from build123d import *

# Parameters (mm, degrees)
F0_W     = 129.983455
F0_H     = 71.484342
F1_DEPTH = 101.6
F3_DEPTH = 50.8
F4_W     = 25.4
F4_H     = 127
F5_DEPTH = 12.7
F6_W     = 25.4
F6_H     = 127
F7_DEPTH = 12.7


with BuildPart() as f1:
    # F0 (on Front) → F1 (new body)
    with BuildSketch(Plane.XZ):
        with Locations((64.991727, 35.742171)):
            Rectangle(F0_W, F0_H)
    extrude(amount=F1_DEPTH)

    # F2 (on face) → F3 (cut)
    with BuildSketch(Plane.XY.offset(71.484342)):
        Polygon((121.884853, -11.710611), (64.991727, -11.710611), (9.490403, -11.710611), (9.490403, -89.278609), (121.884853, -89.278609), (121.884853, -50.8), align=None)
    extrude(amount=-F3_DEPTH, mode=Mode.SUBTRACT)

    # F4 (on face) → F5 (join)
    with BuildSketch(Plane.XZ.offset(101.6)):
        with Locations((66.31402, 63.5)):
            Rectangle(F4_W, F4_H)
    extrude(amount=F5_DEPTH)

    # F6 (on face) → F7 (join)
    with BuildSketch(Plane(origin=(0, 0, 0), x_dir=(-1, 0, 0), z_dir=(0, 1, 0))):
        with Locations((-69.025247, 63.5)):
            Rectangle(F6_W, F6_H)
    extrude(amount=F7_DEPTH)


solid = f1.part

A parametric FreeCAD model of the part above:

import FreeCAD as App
import Part
import Sketcher

V = App.Vector
Q = App.Units.Quantity

doc = App.newDocument("Part")
body = doc.addObject("PartDesign::Body", "Body")

sketch1 = doc.addObject("Sketcher::SketchObject", "Sketch")
body.addObject(sketch1)
sketch1.AttachmentSupport = (doc.XZ_Plane, [""])
sketch1.MapMode = "FlatFace"
sketch1.addGeometry([
    Part.LineSegment(V(0, 71.484342, 0), V(0, 0, 0)),
    Part.LineSegment(V(0, 0, 0), V(129.983454, 0, 0)),
    Part.LineSegment(V(129.983454, 0, 0), V(129.983454, 71.484342, 0)),
    Part.LineSegment(V(129.983454, 71.484342, 0), V(0, 71.484342, 0)),
], False)
sketch1.addConstraint([
    Sketcher.Constraint("Coincident", 0, 2, 1, 1),
    Sketcher.Constraint("Coincident", 1, 2, 2, 1),
    Sketcher.Constraint("Coincident", 2, 2, 3, 1),
    Sketcher.Constraint("Coincident", 3, 2, 0, 1),
    Sketcher.Constraint("Vertical", 0),
    Sketcher.Constraint("Horizontal", 1),
    Sketcher.Constraint("Vertical", 2),
    Sketcher.Constraint("Horizontal", 3),
    Sketcher.Constraint("Coincident", 0, 2, -1, 1),
    Sketcher.Constraint("DistanceY", 0, 2, 0, 1, 71.484342),
    Sketcher.Constraint("DistanceX", 1, 1, 1, 2, 129.983455),
])
pad1 = doc.addObject("PartDesign::Pad", "Pad")
body.addObject(pad1)
pad1.Profile = sketch1
pad1.Length = Q("4 in")

sketch2 = doc.addObject("Sketcher::SketchObject", "Sketch001")
body.addObject(sketch2)
sketch2.AttachmentSupport = (doc.XY_Plane, [""])
sketch2.MapMode = "FlatFace"
sketch2.AttachmentOffset = App.Placement(V(0, 0, 71.484342), App.Rotation())
sketch2.addGeometry([
    Part.LineSegment(V(121.884853, -11.710611, 0), V(9.490403, -11.710611, 0)),
    Part.LineSegment(V(9.490403, -11.710611, 0), V(9.490403, -89.278609, 0)),
    Part.LineSegment(V(9.490403, -89.278609, 0), V(121.884853, -89.278609, 0)),
    Part.LineSegment(V(121.884853, -89.278609, 0), V(121.884853, -11.710611, 0)),
], False)
sketch2.addConstraint([
    Sketcher.Constraint("Coincident", 0, 2, 1, 1),
    Sketcher.Constraint("Coincident", 1, 2, 2, 1),
    Sketcher.Constraint("Coincident", 2, 2, 3, 1),
    Sketcher.Constraint("Coincident", 3, 2, 0, 1),
    Sketcher.Constraint("Horizontal", 0),
    Sketcher.Constraint("Vertical", 1),
    Sketcher.Constraint("Horizontal", 2),
    Sketcher.Constraint("Vertical", 3),
    Sketcher.Constraint("DistanceY", 1, 2, 1, 1, 77.567998),
    Sketcher.Constraint("DistanceX", 0, 2, 0, 1, 112.39445),
    Sketcher.Constraint("DistanceY", 0, 2, -1, 1, 11.710611),
    Sketcher.Constraint("DistanceX", -1, 1, 0, 2, 9.490403),
])
pocket1 = doc.addObject("PartDesign::Pocket", "Pocket")
body.addObject(pocket1)
pocket1.Profile = sketch2
pocket1.Length = Q("2 in")

sketch3 = doc.addObject("Sketcher::SketchObject", "Sketch002")
body.addObject(sketch3)
sketch3.AttachmentSupport = (doc.XZ_Plane, [""])
sketch3.MapMode = "FlatFace"
sketch3.AttachmentOffset = App.Placement(V(0, 0, 4 * 25.4), App.Rotation())
sketch3.addGeometry([
    Part.LineSegment(V(53.61402, 127, 0), V(53.61402, 0, 0)),
    Part.LineSegment(V(53.61402, 0, 0), V(79.01402, 0, 0)),
    Part.LineSegment(V(79.01402, 0, 0), V(79.01402, 127, 0)),
    Part.LineSegment(V(79.01402, 127, 0), V(53.61402, 127, 0)),
], False)
sketch3.addConstraint([
    Sketcher.Constraint("Coincident", 0, 2, 1, 1),
    Sketcher.Constraint("Coincident", 1, 2, 2, 1),
    Sketcher.Constraint("Coincident", 2, 2, 3, 1),
    Sketcher.Constraint("Coincident", 3, 2, 0, 1),
    Sketcher.Constraint("Vertical", 0),
    Sketcher.Constraint("Horizontal", 1),
    Sketcher.Constraint("Vertical", 2),
    Sketcher.Constraint("Horizontal", 3),
    Sketcher.Constraint("PointOnObject", 0, 2, -1),
    Sketcher.Constraint("DistanceX", 1, 1, 1, 2, Q("1 in")),
    Sketcher.Constraint("DistanceY", 0, 2, 0, 1, Q("5 in")),
    Sketcher.Constraint("DistanceX", -1, 1, 0, 2, 53.61402),
])
pad2 = doc.addObject("PartDesign::Pad", "Pad001")
body.addObject(pad2)
pad2.Profile = sketch3
pad2.Length = Q("0.5 in")

sketch4 = doc.addObject("Sketcher::SketchObject", "Sketch003")
body.addObject(sketch4)
sketch4.AttachmentSupport = (doc.XZ_Plane, [""])
sketch4.MapMode = "FlatFace"
sketch4.addGeometry([
    Part.LineSegment(V(81.725247, 127, 0), V(81.725247, 0, 0)),
    Part.LineSegment(V(81.725247, 0, 0), V(56.325247, 0, 0)),
    Part.LineSegment(V(56.325247, 0, 0), V(56.325247, 127, 0)),
    Part.LineSegment(V(56.325247, 127, 0), V(81.725247, 127, 0)),
], False)
sketch4.addConstraint([
    Sketcher.Constraint("Coincident", 0, 2, 1, 1),
    Sketcher.Constraint("Coincident", 1, 2, 2, 1),
    Sketcher.Constraint("Coincident", 2, 2, 3, 1),
    Sketcher.Constraint("Coincident", 3, 2, 0, 1),
    Sketcher.Constraint("Vertical", 0),
    Sketcher.Constraint("Horizontal", 1),
    Sketcher.Constraint("Vertical", 2),
    Sketcher.Constraint("Horizontal", 3),
    Sketcher.Constraint("PointOnObject", 0, 2, -1),
    Sketcher.Constraint("DistanceX", 1, 2, 1, 1, Q("1 in")),
    Sketcher.Constraint("DistanceY", 0, 2, 0, 1, Q("5 in")),
    Sketcher.Constraint("DistanceX", -1, 1, 0, 2, 81.725247),
])
pad3 = doc.addObject("PartDesign::Pad", "Pad002")
body.addObject(pad3)
pad3.Profile = sketch4
pad3.Length = Q("0.5 in")
pad3.Reversed = True

doc.recompute()
